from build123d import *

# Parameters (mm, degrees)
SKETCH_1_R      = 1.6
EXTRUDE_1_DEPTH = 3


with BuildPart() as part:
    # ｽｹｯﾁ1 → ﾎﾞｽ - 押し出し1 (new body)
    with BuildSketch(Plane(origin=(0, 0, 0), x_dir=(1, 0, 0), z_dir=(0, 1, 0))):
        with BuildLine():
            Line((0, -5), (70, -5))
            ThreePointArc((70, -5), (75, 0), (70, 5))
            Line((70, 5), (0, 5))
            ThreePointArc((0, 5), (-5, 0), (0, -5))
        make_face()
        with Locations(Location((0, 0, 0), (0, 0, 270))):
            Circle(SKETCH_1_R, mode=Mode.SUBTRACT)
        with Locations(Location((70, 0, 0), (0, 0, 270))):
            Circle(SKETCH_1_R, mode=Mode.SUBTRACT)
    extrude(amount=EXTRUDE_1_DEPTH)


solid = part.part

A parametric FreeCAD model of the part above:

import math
import FreeCAD as App
import Part
import Sketcher

V = App.Vector

doc = App.newDocument("Part")
body = doc.addObject("PartDesign::Body", "Body")

sketch1 = body.newObject("Sketcher::SketchObject", "Sketch")
sketch1.AttachmentSupport = (doc.getObject("XZ_Plane"), [""])
sketch1.MapMode = "FlatFace"
sketch1.addGeometry(Part.LineSegment(V(0, 5, 0), V(70, 5, 0)), False)
sketch1.addGeometry(Part.ArcOfCircle(Part.Circle(V(70, 0, 0), V(0, 0, 1), 5), math.radians(-90), math.radians(90)), False)
sketch1.addGeometry(Part.LineSegment(V(70, -5, 0), V(0, -5, 0)), False)
sketch1.addGeometry(Part.ArcOfCircle(Part.Circle(V(0, 0, 0), V(0, 0, 1), 5), math.radians(90), math.radians(270)), False)
sketch1.addGeometry(Part.Circle(V(0, 0, 0), V(0, 0, 1), 1.6), False)
sketch1.addGeometry(Part.Circle(V(70, 0, 0), V(0, 0, 1), 1.6), False)
sketch1.addConstraint(Sketcher.Constraint("Tangent", 0, 2, 1, 2))
sketch1.addConstraint(Sketcher.Constraint("Tangent", 1, 1, 2, 1))
sketch1.addConstraint(Sketcher.Constraint("Tangent", 2, 2, 3, 2))
sketch1.addConstraint(Sketcher.Constraint("Tangent", 3, 1, 0, 1))
sketch1.addConstraint(Sketcher.Constraint("Horizontal", 0))
sketch1.addConstraint(Sketcher.Constraint("Horizontal", 2))
sketch1.addConstraint(Sketcher.Constraint("Coincident", 3, 3, -1, 1))
sketch1.addConstraint(Sketcher.Constraint("Coincident", 4, 3, -1, 1))
sketch1.addConstraint(Sketcher.Constraint("Coincident", 5, 3, 1, 3))
sketch1.addConstraint(Sketcher.Constraint("Equal", 4, 5))
sketch1.addConstraint(Sketcher.Constraint("Radius", 1, 5.0))
sketch1.addConstraint(Sketcher.Constraint("Diameter", 4, 3.2))
sketch1.addConstraint(Sketcher.Constraint("DistanceX", 0, 1, 0, 2, 70.0))
pad1 = body.newObject("PartDesign::Pad", "Pad")
pad1.Profile = sketch1
pad1.Length = 3
pad1.Reversed = True

doc.recompute()
